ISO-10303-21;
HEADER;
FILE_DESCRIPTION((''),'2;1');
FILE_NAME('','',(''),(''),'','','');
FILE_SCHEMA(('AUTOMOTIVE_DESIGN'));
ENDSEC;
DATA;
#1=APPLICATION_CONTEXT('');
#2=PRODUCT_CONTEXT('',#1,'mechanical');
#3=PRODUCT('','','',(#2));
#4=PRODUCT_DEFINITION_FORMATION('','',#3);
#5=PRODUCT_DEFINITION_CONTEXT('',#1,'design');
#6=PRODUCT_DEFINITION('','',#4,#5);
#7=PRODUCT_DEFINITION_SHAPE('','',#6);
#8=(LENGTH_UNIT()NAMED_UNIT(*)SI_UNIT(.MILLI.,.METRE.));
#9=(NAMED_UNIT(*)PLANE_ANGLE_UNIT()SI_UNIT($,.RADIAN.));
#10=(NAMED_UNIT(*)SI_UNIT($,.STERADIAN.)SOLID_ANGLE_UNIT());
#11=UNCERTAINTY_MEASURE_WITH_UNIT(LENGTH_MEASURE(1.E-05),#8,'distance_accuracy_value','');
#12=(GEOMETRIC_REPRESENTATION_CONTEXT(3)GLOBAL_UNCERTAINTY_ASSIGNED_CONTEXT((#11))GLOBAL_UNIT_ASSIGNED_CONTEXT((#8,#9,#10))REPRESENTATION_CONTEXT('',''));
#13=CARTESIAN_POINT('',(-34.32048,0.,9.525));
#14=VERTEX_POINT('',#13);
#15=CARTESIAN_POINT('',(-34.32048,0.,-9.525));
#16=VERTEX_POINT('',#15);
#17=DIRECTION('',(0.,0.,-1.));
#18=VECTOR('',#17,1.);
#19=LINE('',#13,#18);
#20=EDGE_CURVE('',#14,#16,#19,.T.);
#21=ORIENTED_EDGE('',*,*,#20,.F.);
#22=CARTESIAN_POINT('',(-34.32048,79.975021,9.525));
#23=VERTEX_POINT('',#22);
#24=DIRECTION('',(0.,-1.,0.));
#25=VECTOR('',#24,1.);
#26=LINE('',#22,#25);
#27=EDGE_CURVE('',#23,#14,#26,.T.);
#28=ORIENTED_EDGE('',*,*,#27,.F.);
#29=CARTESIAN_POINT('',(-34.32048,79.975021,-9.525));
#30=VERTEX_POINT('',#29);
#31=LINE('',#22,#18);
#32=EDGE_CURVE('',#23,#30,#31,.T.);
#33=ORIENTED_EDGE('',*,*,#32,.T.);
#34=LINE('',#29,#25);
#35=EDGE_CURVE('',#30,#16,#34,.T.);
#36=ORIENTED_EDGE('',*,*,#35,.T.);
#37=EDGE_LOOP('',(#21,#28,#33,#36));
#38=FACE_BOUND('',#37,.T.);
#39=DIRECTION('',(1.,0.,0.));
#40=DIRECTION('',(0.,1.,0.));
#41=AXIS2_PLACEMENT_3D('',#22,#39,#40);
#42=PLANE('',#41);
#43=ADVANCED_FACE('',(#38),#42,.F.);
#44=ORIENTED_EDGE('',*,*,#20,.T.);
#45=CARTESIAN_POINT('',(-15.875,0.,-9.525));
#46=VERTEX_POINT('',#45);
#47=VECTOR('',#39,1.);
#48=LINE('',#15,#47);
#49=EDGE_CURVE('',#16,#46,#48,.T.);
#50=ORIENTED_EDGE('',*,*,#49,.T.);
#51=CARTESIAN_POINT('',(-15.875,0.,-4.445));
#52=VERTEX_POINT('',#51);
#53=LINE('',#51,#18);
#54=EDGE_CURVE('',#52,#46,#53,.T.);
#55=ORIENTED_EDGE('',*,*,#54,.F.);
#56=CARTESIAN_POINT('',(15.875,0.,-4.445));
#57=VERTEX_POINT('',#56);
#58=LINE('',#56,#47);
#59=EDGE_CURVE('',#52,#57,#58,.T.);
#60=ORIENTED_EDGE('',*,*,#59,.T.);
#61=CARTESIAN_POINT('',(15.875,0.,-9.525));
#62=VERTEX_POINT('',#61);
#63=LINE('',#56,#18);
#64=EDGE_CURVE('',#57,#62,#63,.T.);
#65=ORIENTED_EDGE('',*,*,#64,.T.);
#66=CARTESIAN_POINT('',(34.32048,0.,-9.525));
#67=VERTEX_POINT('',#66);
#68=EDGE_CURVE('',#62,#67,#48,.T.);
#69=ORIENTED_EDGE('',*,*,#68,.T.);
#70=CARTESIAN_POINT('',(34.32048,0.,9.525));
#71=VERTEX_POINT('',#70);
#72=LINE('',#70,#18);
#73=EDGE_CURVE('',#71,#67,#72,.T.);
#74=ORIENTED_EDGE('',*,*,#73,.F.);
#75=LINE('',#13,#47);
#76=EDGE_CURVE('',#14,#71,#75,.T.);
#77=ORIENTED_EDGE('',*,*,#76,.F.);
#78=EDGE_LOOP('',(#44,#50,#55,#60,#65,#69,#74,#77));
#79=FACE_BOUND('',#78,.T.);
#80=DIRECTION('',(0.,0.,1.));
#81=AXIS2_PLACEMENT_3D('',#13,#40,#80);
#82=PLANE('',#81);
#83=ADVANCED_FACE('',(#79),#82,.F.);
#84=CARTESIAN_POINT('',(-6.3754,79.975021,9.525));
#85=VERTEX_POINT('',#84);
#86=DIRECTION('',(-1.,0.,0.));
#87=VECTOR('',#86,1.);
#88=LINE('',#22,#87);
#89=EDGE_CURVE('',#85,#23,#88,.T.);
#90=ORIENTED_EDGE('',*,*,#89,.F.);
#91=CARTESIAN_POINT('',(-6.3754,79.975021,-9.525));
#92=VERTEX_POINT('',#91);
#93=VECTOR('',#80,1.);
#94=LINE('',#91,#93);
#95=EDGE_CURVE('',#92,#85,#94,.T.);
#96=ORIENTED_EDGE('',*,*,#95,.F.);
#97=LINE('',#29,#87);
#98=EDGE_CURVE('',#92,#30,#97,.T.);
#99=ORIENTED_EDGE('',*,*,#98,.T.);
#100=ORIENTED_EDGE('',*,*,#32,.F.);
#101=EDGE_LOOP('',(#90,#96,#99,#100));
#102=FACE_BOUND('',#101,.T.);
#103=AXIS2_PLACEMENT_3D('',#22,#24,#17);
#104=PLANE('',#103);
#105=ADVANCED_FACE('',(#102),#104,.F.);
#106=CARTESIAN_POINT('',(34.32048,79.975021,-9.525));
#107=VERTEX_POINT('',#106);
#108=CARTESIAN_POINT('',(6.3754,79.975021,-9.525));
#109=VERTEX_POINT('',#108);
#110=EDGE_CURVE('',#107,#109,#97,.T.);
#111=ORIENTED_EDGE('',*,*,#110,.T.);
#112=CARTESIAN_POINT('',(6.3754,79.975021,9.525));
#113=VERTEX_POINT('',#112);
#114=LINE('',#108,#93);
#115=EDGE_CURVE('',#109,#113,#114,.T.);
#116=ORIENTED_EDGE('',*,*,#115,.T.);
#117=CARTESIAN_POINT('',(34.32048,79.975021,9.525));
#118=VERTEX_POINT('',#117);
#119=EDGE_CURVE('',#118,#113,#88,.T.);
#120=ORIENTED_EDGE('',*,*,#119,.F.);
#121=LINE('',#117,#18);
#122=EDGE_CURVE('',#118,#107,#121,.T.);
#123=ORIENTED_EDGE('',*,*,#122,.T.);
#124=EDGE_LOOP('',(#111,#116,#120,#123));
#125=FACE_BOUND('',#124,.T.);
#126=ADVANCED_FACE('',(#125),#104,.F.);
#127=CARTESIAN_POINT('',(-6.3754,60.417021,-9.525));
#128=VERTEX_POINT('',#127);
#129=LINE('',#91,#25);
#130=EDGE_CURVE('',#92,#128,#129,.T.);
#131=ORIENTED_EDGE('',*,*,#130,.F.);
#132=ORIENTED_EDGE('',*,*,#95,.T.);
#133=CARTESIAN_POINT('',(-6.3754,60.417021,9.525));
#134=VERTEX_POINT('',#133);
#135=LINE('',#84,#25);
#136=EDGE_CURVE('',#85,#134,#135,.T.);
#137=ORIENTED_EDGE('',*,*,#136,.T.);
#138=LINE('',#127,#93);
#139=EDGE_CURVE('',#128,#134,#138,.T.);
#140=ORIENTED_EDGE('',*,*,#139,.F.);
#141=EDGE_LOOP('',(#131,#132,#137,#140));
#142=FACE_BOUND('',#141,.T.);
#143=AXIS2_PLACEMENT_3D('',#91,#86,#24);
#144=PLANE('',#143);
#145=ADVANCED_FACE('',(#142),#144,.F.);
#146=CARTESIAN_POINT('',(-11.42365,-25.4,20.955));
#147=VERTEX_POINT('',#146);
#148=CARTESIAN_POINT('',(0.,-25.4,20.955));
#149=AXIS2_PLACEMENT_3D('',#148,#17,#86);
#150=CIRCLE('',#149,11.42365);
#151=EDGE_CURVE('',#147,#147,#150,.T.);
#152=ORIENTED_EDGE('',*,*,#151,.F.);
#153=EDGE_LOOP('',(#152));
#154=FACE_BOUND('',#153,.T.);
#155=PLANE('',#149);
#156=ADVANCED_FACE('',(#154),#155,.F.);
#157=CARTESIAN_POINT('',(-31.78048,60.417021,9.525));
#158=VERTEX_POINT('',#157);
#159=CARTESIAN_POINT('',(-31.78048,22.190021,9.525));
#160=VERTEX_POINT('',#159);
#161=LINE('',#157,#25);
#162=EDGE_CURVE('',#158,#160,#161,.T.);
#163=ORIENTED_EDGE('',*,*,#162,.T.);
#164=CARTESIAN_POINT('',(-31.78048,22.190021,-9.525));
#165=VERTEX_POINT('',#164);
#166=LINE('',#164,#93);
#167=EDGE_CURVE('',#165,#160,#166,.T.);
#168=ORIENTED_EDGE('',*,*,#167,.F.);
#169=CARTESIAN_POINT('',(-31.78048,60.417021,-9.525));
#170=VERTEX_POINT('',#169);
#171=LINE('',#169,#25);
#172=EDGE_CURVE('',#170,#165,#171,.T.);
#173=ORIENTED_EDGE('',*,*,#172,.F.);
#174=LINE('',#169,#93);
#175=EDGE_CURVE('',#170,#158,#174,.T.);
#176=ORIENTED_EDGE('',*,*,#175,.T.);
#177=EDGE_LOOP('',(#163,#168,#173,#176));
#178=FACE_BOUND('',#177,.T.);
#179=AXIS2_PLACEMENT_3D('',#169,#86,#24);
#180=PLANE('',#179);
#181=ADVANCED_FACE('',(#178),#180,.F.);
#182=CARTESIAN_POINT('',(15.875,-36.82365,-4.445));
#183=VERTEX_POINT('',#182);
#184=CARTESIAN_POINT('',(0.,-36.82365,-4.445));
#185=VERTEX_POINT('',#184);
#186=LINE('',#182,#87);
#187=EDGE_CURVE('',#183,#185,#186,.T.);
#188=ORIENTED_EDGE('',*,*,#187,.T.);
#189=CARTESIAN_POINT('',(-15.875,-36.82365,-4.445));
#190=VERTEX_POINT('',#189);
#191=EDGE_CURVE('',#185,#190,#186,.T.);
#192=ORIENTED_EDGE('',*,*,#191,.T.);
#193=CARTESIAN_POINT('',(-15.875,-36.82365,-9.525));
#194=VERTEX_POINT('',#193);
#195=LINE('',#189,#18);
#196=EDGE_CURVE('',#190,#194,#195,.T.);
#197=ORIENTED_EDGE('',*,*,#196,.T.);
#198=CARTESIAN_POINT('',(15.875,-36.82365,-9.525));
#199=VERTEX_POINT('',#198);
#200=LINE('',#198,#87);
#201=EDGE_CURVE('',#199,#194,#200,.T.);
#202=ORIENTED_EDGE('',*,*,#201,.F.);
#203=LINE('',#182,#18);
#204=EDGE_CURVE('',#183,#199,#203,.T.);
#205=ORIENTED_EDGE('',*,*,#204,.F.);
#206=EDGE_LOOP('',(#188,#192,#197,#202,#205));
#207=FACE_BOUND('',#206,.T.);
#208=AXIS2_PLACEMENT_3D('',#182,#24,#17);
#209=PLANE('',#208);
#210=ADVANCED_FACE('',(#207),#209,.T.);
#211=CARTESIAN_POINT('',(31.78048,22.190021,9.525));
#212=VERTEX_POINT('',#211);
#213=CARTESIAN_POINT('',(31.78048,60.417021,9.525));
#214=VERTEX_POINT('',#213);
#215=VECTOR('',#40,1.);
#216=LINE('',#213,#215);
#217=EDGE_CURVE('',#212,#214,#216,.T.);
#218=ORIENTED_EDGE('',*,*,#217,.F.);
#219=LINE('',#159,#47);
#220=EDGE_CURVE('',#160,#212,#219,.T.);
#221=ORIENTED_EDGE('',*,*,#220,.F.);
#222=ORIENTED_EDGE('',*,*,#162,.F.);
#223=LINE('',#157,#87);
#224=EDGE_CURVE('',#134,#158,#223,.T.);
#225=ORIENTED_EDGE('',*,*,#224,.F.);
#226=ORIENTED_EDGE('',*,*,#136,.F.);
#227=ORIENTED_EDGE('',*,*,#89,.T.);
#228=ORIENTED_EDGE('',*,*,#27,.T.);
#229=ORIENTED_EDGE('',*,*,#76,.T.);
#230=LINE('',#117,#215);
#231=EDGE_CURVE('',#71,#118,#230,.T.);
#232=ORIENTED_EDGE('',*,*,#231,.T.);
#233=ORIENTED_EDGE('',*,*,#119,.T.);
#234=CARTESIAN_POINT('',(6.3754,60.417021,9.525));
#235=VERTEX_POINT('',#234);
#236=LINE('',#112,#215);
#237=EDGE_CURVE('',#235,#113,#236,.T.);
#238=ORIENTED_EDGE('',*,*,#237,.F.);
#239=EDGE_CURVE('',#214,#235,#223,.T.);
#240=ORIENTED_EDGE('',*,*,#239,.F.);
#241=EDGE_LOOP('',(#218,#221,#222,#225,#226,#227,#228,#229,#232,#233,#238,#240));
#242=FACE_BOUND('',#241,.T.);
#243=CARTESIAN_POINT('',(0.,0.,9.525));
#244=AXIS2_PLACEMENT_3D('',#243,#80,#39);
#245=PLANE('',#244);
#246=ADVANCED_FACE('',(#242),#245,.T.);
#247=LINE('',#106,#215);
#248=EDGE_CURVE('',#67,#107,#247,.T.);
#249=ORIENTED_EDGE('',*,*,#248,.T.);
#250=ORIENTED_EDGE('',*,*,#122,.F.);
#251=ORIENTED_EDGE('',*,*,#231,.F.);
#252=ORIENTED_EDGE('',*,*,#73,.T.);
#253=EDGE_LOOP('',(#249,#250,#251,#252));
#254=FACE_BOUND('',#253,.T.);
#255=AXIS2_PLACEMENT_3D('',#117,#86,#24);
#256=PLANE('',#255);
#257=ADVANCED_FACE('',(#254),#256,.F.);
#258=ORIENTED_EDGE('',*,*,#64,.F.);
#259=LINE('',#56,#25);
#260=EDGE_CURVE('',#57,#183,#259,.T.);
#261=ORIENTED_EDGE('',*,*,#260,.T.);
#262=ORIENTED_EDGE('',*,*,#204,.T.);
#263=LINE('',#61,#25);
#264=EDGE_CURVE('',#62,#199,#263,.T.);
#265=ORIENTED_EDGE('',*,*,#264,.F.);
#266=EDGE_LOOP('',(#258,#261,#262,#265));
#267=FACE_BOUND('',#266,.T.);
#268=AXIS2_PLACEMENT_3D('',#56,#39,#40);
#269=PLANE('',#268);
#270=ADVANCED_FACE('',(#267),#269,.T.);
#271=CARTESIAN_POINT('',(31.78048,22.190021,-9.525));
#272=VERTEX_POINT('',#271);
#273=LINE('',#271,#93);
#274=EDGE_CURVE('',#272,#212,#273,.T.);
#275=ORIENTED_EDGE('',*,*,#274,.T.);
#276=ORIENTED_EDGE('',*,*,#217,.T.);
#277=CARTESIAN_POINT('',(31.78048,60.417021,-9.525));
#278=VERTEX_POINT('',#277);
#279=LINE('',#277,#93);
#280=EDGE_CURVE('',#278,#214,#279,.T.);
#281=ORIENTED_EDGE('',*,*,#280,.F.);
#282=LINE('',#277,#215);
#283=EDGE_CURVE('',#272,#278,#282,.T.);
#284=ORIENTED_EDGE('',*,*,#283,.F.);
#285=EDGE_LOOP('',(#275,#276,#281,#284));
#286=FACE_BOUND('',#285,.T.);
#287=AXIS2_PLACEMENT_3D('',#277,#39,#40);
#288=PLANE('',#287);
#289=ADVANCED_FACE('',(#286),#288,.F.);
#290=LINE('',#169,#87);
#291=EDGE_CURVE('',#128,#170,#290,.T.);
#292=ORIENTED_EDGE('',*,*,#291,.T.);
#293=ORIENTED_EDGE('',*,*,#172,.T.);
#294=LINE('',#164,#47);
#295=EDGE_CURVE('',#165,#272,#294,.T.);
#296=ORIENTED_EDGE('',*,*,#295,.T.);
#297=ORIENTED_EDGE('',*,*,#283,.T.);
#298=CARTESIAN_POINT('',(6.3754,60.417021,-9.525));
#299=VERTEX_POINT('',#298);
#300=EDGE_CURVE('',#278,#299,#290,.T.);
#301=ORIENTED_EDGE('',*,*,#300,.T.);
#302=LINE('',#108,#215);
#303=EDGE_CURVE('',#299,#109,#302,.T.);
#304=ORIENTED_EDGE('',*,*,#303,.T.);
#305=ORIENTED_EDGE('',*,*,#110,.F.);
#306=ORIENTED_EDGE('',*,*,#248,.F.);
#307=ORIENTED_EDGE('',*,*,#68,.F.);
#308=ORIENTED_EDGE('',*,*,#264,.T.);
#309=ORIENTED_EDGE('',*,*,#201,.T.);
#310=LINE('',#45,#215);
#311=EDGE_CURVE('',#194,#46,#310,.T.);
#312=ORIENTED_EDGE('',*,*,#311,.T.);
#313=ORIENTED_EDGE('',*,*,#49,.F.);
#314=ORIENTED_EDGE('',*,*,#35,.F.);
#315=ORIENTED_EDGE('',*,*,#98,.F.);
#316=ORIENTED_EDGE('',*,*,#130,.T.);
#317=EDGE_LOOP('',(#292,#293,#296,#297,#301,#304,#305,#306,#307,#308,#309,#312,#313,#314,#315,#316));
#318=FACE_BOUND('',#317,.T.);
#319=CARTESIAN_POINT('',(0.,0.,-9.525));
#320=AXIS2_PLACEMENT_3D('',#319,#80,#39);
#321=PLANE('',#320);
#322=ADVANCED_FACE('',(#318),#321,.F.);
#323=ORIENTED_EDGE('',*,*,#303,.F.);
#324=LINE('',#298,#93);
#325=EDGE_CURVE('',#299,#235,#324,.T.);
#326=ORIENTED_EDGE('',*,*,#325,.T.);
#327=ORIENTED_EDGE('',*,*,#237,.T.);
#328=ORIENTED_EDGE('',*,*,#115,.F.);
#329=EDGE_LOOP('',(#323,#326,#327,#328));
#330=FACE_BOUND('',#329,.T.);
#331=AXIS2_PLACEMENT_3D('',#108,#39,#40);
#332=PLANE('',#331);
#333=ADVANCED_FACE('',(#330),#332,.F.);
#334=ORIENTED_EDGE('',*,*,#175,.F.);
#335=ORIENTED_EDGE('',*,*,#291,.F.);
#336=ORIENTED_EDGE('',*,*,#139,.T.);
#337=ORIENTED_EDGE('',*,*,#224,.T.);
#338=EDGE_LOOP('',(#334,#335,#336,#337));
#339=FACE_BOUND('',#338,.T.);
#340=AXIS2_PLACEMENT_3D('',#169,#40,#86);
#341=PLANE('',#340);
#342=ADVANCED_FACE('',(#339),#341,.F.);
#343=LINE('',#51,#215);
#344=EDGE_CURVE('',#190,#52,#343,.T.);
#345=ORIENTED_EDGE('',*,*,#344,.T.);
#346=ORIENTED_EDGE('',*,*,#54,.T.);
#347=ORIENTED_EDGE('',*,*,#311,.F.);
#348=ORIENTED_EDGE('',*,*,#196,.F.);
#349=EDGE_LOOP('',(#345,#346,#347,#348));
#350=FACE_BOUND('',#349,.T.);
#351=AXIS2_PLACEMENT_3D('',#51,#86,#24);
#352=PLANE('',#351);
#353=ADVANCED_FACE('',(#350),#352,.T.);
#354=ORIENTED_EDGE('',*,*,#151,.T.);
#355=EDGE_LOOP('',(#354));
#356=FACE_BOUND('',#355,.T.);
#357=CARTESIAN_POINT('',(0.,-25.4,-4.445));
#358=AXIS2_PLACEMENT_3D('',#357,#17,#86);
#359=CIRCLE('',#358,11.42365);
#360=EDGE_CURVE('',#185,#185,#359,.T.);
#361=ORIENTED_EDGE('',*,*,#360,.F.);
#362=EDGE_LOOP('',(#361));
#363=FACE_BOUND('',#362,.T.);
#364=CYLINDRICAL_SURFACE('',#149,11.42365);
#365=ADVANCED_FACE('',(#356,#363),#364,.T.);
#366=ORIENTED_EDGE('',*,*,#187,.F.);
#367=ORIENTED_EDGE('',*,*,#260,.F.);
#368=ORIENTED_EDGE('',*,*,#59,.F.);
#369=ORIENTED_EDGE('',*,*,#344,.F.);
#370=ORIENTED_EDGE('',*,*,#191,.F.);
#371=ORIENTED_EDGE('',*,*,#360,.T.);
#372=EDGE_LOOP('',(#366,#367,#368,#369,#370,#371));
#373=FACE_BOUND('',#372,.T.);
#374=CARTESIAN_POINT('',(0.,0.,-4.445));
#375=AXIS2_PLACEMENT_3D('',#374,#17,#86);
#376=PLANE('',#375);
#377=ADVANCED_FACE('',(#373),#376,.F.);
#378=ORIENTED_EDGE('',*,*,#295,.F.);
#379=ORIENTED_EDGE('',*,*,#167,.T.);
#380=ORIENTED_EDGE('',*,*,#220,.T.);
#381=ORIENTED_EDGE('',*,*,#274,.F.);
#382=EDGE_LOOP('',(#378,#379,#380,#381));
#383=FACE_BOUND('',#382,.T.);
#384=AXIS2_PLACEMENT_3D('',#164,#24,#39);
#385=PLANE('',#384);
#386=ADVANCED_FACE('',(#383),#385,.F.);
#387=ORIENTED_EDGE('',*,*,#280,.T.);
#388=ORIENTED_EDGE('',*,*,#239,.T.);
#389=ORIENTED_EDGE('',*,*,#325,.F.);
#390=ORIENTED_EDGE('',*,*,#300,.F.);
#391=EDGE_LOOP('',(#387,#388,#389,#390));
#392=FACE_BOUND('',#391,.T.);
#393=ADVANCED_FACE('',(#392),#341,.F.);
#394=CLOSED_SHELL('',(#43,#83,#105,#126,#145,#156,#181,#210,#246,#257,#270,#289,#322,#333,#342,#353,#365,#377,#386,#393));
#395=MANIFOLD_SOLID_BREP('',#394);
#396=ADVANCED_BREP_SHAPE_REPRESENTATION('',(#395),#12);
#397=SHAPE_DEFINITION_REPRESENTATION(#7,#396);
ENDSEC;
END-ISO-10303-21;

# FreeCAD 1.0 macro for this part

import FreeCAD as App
import Part
import Sketcher

V = App.Vector
Q = App.Units.Quantity

doc = App.newDocument("Part")
params = doc.addObject("Spreadsheet::Sheet", "Params")
for row, (alias, value) in enumerate([
    ("pad1_length", "0.75 in"),
    ("sketch2_height", "1.505 in"),
    ("sketch3_height", "0.77 in"),
    ("sketch3_width", "0.502 in"),
    ("sketch4_width", "1.25 in"),
    ("pad2_length", "0.2 in"),
    ("pad3_length", "1.2 in"),
], start=1):
    params.set(f"A{row}", alias)
    params.set(f"B{row}", "=" + value)
    params.setAlias(f"B{row}", alias)

body = doc.addObject("PartDesign::Body", "Body")

# Sketch on XY plane
sketch1 = doc.addObject("Sketcher::SketchObject", "Sketch")
body.addObject(sketch1)
sketch1.AttachmentSupport = (doc.XY_Plane, [""])
sketch1.MapMode = "FlatFace"
sketch1.addGeometry([
    Part.LineSegment(V(-34, 80, 0), V(-34, 0, 0)),
    Part.LineSegment(V(-34, 0, 0), V(34, 0, 0)),
    Part.LineSegment(V(34, 0, 0), V(34, 80, 0)),
    Part.LineSegment(V(34, 80, 0), V(-34, 80, 0)),
], False)
sketch1.addConstraint([
    Sketcher.Constraint("Coincident", 0, 2, 1, 1),
    Sketcher.Constraint("Coincident", 1, 2, 2, 1),
    Sketcher.Constraint("Coincident", 2, 2, 3, 1),
    Sketcher.Constraint("Coincident", 3, 2, 0, 1),
    Sketcher.Constraint("Vertical", 0),
    Sketcher.Constraint("Horizontal", 1),
    Sketcher.Constraint("Vertical", 2),
    Sketcher.Constraint("Horizontal", 3),
    Sketcher.Constraint("Symmetric", 0, 2, 1, 2, -1, 1),
    Sketcher.Constraint("DistanceX", 1, 1, 1, 2, Q("2.7024 in")),
    Sketcher.Constraint("DistanceY", 0, 2, 0, 1, Q("79.975021 mm")),
])
pad1 = doc.addObject("PartDesign::Pad", "Pad")
body.addObject(pad1)
pad1.Profile = sketch1
pad1.setExpression("Length", "Params.pad1_length")
pad1.Midplane = True

# Sketch on XY plane
sketch2 = doc.addObject("Sketcher::SketchObject", "Sketch001")
body.addObject(sketch2)
sketch2.AttachmentSupport = (doc.XY_Plane, [""])
sketch2.MapMode = "FlatFace"
sketch2.AttachmentOffset = App.Placement(V(0, 0, 0.375 * 25.4), App.Rotation())
sketch2.addGeometry([
    Part.LineSegment(V(-32, 60, 0), V(-32, 22, 0)),
    Part.LineSegment(V(-32, 22, 0), V(32, 22, 0)),
    Part.LineSegment(V(32, 22, 0), V(32, 60, 0)),
    Part.LineSegment(V(32, 60, 0), V(-32, 60, 0)),
], False)
sketch2.addConstraint([
    Sketcher.Constraint("Coincident", 0, 2, 1, 1),
    Sketcher.Constraint("Coincident", 1, 2, 2, 1),
    Sketcher.Constraint("Coincident", 2, 2, 3, 1),
    Sketcher.Constraint("Coincident", 3, 2, 0, 1),
    Sketcher.Constraint("Vertical", 0),
    Sketcher.Constraint("Horizontal", 1),
    Sketcher.Constraint("Vertical", 2),
    Sketcher.Constraint("Horizontal", 3),
    Sketcher.Constraint("DistanceY", 0, 2, 0, 1, Q("1.505 in")),
    Sketcher.Constraint("DistanceX", 1, 1, 1, 2, Q("2.5024 in")),
    Sketcher.Constraint("DistanceX", 0, 2, -1, 1, Q("1.2512 in")),
    Sketcher.Constraint("DistanceY", -1, 1, 0, 2, Q("22.190021 mm")),
])
sketch2.setExpression("Constraints[8]", "Params.sketch2_height")
pocket1 = doc.addObject("PartDesign::Pocket", "Pocket")
body.addObject(pocket1)
pocket1.Profile = sketch2
pocket1.Type = "ThroughAll"

# Sketch on XY plane
sketch3 = doc.addObject("Sketcher::SketchObject", "Sketch002")
body.addObject(sketch3)
sketch3.AttachmentSupport = (doc.XY_Plane, [""])
sketch3.MapMode = "FlatFace"
sketch3.AttachmentOffset = App.Placement(V(0, 0, 0.375 * 25.4), App.Rotation())
sketch3.addGeometry([
    Part.LineSegment(V(-6, 80, 0), V(-6, 60, 0)),
    Part.LineSegment(V(-6, 60, 0), V(6, 60, 0)),
    Part.LineSegment(V(6, 60, 0), V(6, 80, 0)),
    Part.LineSegment(V(6, 80, 0), V(-6, 80, 0)),
], False)
sketch3.addConstraint([
    Sketcher.Constraint("Coincident", 0, 2, 1, 1),
    Sketcher.Constraint("Coincident", 1, 2, 2, 1),
    Sketcher.Constraint("Coincident", 2, 2, 3, 1),
    Sketcher.Constraint("Coincident", 3, 2, 0, 1),
    Sketcher.Constraint("Vertical", 0),
    Sketcher.Constraint("Horizontal", 1),
    Sketcher.Constraint("Vertical", 2),
    Sketcher.Constraint("Horizontal", 3),
    Sketcher.Constraint("DistanceY", 0, 2, 0, 1, Q("0.77 in")),
    Sketcher.Constraint("DistanceX", 1, 1, 1, 2, Q("0.502 in")),
    Sketcher.Constraint("DistanceX", 0, 2, -1, 1, Q("0.251 in")),
    Sketcher.Constraint("DistanceY", -1, 1, 0, 2, Q("60.417021 mm")),
])
sketch3.setExpression("Constraints[8]", "Params.sketch3_height")
sketch3.setExpression("Constraints[9]", "Params.sketch3_width")
pocket2 = doc.addObject("PartDesign::Pocket", "Pocket001")
body.addObject(pocket2)
pocket2.Profile = sketch3
pocket2.Type = "ThroughAll"

# Sketch on XY plane
sketch4 = doc.addObject("Sketcher::SketchObject", "Sketch003")
body.addObject(sketch4)
sketch4.AttachmentSupport = (doc.XY_Plane, [""])
sketch4.MapMode = "FlatFace"
sketch4.AttachmentOffset = App.Placement(V(0, 0, -0.375 * 25.4), App.Rotation())
sketch4.addGeometry([
    Part.LineSegment(V(16, 0, 0), V(16, -37, 0)),
    Part.LineSegment(V(16, -37, 0), V(-16, -37, 0)),
    Part.LineSegment(V(-16, -37, 0), V(-16, 0, 0)),
    Part.LineSegment(V(-16, 0, 0), V(16, 0, 0)),
], False)
sketch4.addConstraint([
    Sketcher.Constraint("Coincident", 0, 2, 1, 1),
    Sketcher.Constraint("Coincident", 1, 2, 2, 1),
    Sketcher.Constraint("Coincident", 2, 2, 3, 1),
    Sketcher.Constraint("Coincident", 3, 2, 0, 1),
    Sketcher.Constraint("Vertical", 0),
    Sketcher.Constraint("Horizontal", 1),
    Sketcher.Constraint("Vertical", 2),
    Sketcher.Constraint("Horizontal", 3),
    Sketcher.Constraint("Symmetric", 2, 2, 3, 2, -1, 1),
    Sketcher.Constraint("DistanceX", 1, 2, 1, 1, Q("1.25 in")),
    Sketcher.Constraint("DistanceY", 0, 2, 0, 1, Q("36.82365 mm")),
])
sketch4.setExpression("Constraints[9]", "Params.sketch4_width")
pad2 = doc.addObject("PartDesign::Pad", "Pad001")
body.addObject(pad2)
pad2.Profile = sketch4
pad2.setExpression("Length", "Params.pad2_length")

# Sketch on XY plane
sketch5 = doc.addObject("Sketcher::SketchObject", "Sketch004")
body.addObject(sketch5)
sketch5.AttachmentSupport = (doc.XY_Plane, [""])
sketch5.MapMode = "FlatFace"
sketch5.AttachmentOffset = App.Placement(V(0, 0, -0.375 * 25.4), App.Rotation())
sketch5.addGeometry(Part.Circle(V(0, -25, 0), V(0, 0, 1), 11), False)
sketch5.addConstraint([
    Sketcher.Constraint("PointOnObject", 0, 3, -2),
    Sketcher.Constraint("DistanceY", 0, 3, -1, 1, Q("1 in")),
    Sketcher.Constraint("Diameter", 0, Q("0.8995 in")),
])
pad3 = doc.addObject("PartDesign::Pad", "Pad002")
body.addObject(pad3)
pad3.Profile = sketch5
pad3.setExpression("Length", "Params.pad3_length")

doc.recompute()
